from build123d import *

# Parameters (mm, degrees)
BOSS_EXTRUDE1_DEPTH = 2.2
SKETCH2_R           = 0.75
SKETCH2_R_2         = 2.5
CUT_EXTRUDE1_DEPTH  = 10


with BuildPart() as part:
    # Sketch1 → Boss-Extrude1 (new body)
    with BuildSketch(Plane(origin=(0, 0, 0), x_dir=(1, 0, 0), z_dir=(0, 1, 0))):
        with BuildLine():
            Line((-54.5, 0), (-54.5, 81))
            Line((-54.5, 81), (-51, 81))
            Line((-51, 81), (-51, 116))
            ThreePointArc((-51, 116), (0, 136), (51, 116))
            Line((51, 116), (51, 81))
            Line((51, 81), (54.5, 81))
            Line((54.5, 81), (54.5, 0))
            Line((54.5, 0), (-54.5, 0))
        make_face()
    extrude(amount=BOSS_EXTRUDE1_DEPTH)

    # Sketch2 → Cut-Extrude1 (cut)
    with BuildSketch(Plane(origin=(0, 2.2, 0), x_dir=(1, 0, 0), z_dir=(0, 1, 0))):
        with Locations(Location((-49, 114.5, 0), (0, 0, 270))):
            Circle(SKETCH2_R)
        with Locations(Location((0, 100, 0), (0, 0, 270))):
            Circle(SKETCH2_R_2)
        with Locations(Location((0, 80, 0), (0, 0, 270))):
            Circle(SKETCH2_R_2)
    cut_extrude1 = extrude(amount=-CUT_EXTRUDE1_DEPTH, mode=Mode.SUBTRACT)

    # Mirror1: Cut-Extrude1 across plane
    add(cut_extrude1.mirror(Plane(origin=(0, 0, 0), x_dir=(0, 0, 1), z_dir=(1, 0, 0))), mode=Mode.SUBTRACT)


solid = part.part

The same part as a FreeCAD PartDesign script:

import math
import FreeCAD as App
import Part
import Sketcher
Q = App.Units.Quantity

doc = App.newDocument("Part")
body = doc.addObject("PartDesign::Body", "Body")

# Sketch on XZ plane
sketch1 = body.newObject("Sketcher::SketchObject", "Sketch")
sketch1.AttachmentSupport = (doc.getObject("XZ_Plane"), [""])
sketch1.MapMode = "FlatFace"
sketch1.addGeometry(Part.LineSegment(App.Vector(-54.5, -81, 0), App.Vector(-54.5, 0, 0)), False)
sketch1.addGeometry(Part.LineSegment(App.Vector(-54.5, 0, 0), App.Vector(54.5, 0, 0)), False)
sketch1.addGeometry(Part.LineSegment(App.Vector(54.5, 0, 0), App.Vector(54.5, -81, 0)), False)
sketch1.addGeometry(Part.LineSegment(App.Vector(54.5, -81, 0), App.Vector(51, -81, 0)), False)
sketch1.addGeometry(Part.LineSegment(App.Vector(51, -81, 0), App.Vector(51, -116, 0)), False)
sketch1.addGeometry(Part.ArcOfCircle(Part.Circle(App.Vector(0, -61, 0), App.Vector(0, 0, 1), 75), math.radians(-133), math.radians(-47)), False)
sketch1.addGeometry(Part.LineSegment(App.Vector(-51, -116, 0), App.Vector(-51, -81, 0)), False)
sketch1.addGeometry(Part.LineSegment(App.Vector(-51, -81, 0), App.Vector(-54.5, -81, 0)), False)
sketch1.addConstraint(Sketcher.Constraint("Coincident", 0, 2, 1, 1))
sketch1.addConstraint(Sketcher.Constraint("Coincident", 1, 2, 2, 1))
sketch1.addConstraint(Sketcher.Constraint("Coincident", 2, 2, 3, 1))
sketch1.addConstraint(Sketcher.Constraint("Coincident", 3, 2, 4, 1))
sketch1.addConstraint(Sketcher.Constraint("Coincident", 4, 2, 5, 2))
sketch1.addConstraint(Sketcher.Constraint("Coincident", 5, 1, 6, 1))
sketch1.addConstraint(Sketcher.Constraint("Coincident", 6, 2, 7, 1))
sketch1.addConstraint(Sketcher.Constraint("Coincident", 7, 2, 0, 1))
sketch1.addConstraint(Sketcher.Constraint("Vertical", 0))
sketch1.addConstraint(Sketcher.Constraint("Horizontal", 1))
sketch1.addConstraint(Sketcher.Constraint("Vertical", 2))
sketch1.addConstraint(Sketcher.Constraint("Horizontal", 3))
sketch1.addConstraint(Sketcher.Constraint("Vertical", 4))
sketch1.addConstraint(Sketcher.Constraint("Vertical", 6))
sketch1.addConstraint(Sketcher.Constraint("Horizontal", 7))
sketch1.addConstraint(Sketcher.Constraint("Symmetric", 0, 2, 1, 2, -1, 1))
sketch1.addConstraint(Sketcher.Constraint("Symmetric", 4, 2, 5, 1, -2))
sketch1.addConstraint(Sketcher.Constraint("Horizontal", 3, 2, 6, 2))
sketch1.addConstraint(Sketcher.Constraint("DistanceX", 1, 1, 1, 2, Q("109 mm")))
sketch1.addConstraint(Sketcher.Constraint("DistanceY", 0, 1, 0, 2, Q("81 mm")))
sketch1.addConstraint(Sketcher.Constraint("DistanceY", 4, 2, 4, 1, Q("35 mm")))
sketch1.addConstraint(Sketcher.Constraint("DistanceX", 3, 2, 3, 1, Q("3.5 mm")))
sketch1.addConstraint(Sketcher.Constraint("Radius", 5, Q("75.025 mm")))
pad1 = body.newObject("PartDesign::Pad", "Pad")
pad1.Profile = sketch1
pad1.Length = 2.2
pad1.Reversed = True

# Sketch on XZ plane
sketch2 = body.newObject("Sketcher::SketchObject", "Sketch001")
sketch2.AttachmentSupport = (doc.getObject("XZ_Plane"), [""])
sketch2.MapMode = "FlatFace"
sketch2.AttachmentOffset = App.Placement(App.Vector(0, 0, -2.2), App.Rotation())
sketch2.addGeometry(Part.Circle(App.Vector(-49, -114.5, 0), App.Vector(0, 0, 1), 0.8), False)
sketch2.addGeometry(Part.Circle(App.Vector(0, -100, 0), App.Vector(0, 0, 1), 2.5), False)
sketch2.addGeometry(Part.Circle(App.Vector(0, -80, 0), App.Vector(0, 0, 1), 2.5), False)
sketch2.addConstraint(Sketcher.Constraint("Equal", 1, 2))
sketch2.addConstraint(Sketcher.Constraint("PointOnObject", 1, 3, -2))
sketch2.addConstraint(Sketcher.Constraint("PointOnObject", 2, 3, -2))
sketch2.addConstraint(Sketcher.Constraint("Diameter", 1, Q("5 mm")))
sketch2.addConstraint(Sketcher.Constraint("Diameter", 0, Q("1.5 mm")))
sketch2.addConstraint(Sketcher.Constraint("DistanceX", 0, 3, -1, 1, Q("49 mm")))
sketch2.addConstraint(Sketcher.Constraint("DistanceY", 1, 3, -1, 1, Q("100 mm")))
sketch2.addConstraint(Sketcher.Constraint("DistanceY", 2, 3, -1, 1, Q("80 mm")))
sketch2.addConstraint(Sketcher.Constraint("DistanceY", 0, 3, -1, 1, Q("114.5 mm")))
pocket1 = body.newObject("PartDesign::Pocket", "Pocket")
pocket1.Profile = sketch2
pocket1.Length = 10
pocket1.Reversed = True
doc.recompute()

mirrored = body.newObject("PartDesign::Mirrored", "Mirrored")
mirrored.Originals = [pocket1]
mirrored.MirrorPlane = (doc.getObject("YZ_Plane"), [""])
body.Tip = mirrored

doc.recompute()
